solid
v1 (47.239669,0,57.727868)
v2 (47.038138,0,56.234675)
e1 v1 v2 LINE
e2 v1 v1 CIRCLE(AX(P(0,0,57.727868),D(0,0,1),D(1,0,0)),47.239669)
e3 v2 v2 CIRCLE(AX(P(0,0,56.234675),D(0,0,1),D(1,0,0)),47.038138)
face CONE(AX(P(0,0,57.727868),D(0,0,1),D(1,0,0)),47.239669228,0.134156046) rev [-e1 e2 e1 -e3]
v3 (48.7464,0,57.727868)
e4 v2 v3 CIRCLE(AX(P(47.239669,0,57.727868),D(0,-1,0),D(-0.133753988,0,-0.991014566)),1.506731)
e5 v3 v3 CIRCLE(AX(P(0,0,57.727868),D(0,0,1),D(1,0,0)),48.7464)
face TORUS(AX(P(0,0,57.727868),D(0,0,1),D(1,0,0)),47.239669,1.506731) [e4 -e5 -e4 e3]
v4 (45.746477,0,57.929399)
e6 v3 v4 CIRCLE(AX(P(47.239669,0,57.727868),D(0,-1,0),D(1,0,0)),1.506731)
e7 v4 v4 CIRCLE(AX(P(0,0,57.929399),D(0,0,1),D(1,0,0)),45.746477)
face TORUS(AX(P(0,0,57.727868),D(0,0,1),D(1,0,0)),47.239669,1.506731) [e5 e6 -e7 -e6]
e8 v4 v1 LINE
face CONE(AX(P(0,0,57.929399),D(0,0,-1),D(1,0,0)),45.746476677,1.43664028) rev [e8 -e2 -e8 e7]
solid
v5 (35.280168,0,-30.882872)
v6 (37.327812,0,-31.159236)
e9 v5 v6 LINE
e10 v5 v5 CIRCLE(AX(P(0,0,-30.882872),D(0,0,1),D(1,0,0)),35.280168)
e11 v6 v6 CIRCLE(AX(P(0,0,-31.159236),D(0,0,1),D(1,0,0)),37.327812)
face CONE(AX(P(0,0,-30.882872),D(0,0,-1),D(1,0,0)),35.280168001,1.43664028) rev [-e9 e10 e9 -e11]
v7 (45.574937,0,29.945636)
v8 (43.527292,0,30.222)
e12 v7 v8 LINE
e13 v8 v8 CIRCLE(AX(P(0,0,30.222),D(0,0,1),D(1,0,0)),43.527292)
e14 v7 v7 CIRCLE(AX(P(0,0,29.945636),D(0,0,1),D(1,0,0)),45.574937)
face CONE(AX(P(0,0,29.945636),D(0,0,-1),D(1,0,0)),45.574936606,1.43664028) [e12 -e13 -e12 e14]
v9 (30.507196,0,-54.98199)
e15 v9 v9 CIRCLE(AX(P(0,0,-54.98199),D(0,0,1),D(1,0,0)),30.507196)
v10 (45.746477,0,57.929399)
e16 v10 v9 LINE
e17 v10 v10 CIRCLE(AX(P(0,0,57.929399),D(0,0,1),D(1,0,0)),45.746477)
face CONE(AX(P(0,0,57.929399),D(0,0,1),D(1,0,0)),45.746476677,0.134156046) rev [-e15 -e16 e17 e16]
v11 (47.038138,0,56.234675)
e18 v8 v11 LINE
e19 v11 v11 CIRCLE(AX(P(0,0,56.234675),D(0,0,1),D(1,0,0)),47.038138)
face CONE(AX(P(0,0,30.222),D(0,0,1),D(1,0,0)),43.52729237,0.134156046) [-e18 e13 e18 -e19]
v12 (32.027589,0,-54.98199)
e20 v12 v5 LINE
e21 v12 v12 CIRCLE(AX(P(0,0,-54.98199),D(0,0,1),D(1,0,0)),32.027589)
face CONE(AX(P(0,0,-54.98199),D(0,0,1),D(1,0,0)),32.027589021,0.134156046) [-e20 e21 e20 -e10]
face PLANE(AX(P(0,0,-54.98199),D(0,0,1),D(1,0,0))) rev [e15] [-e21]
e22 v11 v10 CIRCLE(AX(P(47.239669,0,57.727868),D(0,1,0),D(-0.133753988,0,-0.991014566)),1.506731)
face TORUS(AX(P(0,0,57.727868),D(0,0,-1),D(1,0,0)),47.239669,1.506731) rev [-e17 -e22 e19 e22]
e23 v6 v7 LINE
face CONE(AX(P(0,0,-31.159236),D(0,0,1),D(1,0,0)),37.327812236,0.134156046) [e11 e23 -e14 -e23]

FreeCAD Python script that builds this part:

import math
import FreeCAD as App
import Part
import Sketcher

doc = App.newDocument("Part")
params = doc.addObject("Spreadsheet::Sheet", "Params")
for row, (alias, value) in enumerate([
    ("revolution_angle", "360 deg"),
    ("revolution2_angle", "360 deg"),
], start=1):
    params.set(f"A{row}", alias)
    params.set(f"B{row}", "=" + value)
    params.setAlias(f"B{row}", alias)

body = doc.addObject("PartDesign::Body", "Body")

# Sketch on XZ plane
sketch1 = body.newObject("Sketcher::SketchObject", "Sketch")
sketch1.AttachmentSupport = (doc.getObject("XZ_Plane"), [""])
sketch1.MapMode = "FlatFace"
sketch1.addGeometry(Part.LineSegment(App.Vector(47.2, 57.7, 0), App.Vector(47, 56.2, 0)), False)
sketch1.addGeometry(Part.ArcOfCircle(Part.Circle(App.Vector(47.2, 57.7, 0), App.Vector(0, 0, 1), 1.5), math.radians(-98), math.radians(0)), False)
sketch1.addGeometry(Part.ArcOfCircle(Part.Circle(App.Vector(47.2, 57.7, 0), App.Vector(0, 0, 1), 1.5), math.radians(0), math.radians(172)), False)
sketch1.addGeometry(Part.LineSegment(App.Vector(45.7, 57.9, 0), App.Vector(47.2, 57.7, 0)), False)
sketch1.addConstraint(Sketcher.Constraint("Coincident", 0, 2, 1, 1))
sketch1.addConstraint(Sketcher.Constraint("Tangent", 1, 2, 2, 1))
sketch1.addConstraint(Sketcher.Constraint("Coincident", 2, 2, 3, 1))
sketch1.addConstraint(Sketcher.Constraint("Coincident", 3, 2, 0, 1))
sketch1.addConstraint(Sketcher.Constraint("Coincident", 3, 2, 1, 3))
sketch1.addConstraint(Sketcher.Constraint("Equal", 1, 2))
sketch1.addConstraint(Sketcher.Constraint("Perpendicular", 0, 3))
sketch1.addConstraint(Sketcher.Constraint("Horizontal", 2, 3, 1, 2))
sketch1.addConstraint(Sketcher.Constraint("Radius", 1, 1.506731))
sketch1.addConstraint(Sketcher.Constraint("DistanceX", -1, 1, 1, 2, 48.7464))
sketch1.addConstraint(Sketcher.Constraint("DistanceY", -1, 1, 2, 2, 57.929399))
sketch1.addConstraint(Sketcher.Constraint("DistanceX", 0, 2, 1, 3, 0.201531))
revolution = body.newObject("PartDesign::Revolution", "Revolution")
revolution.Profile = sketch1
revolution.ReferenceAxis = (sketch1, ["V_Axis"])
revolution.setExpression("Angle", "Params.revolution_angle")
body2 = doc.addObject("PartDesign::Body", "Body001")

# Sketch on XZ plane
sketch2 = body2.newObject("Sketcher::SketchObject", "Sketch001")
sketch2.AttachmentSupport = (doc.getObject("XZ_Plane001"), [""])
sketch2.MapMode = "FlatFace"
sketch2.addGeometry(Part.LineSegment(App.Vector(37.3, -31.2, 0), App.Vector(45.6, 29.9, 0)), False)
sketch2.addGeometry(Part.LineSegment(App.Vector(45.6, 29.9, 0), App.Vector(43.5, 30.2, 0)), False)
sketch2.addGeometry(Part.LineSegment(App.Vector(43.5, 30.2, 0), App.Vector(47, 56.2, 0)), False)
sketch2.addGeometry(Part.ArcOfCircle(Part.Circle(App.Vector(47.2, 57.7, 0), App.Vector(0, 0, 1), 1.5), math.radians(172), math.radians(262)), False)
sketch2.addGeometry(Part.LineSegment(App.Vector(45.7, 57.9, 0), App.Vector(30.5, -55, 0)), False)
sketch2.addGeometry(Part.LineSegment(App.Vector(30.5, -55, 0), App.Vector(32, -55, 0)), False)
sketch2.addGeometry(Part.LineSegment(App.Vector(32, -55, 0), App.Vector(35.3, -30.9, 0)), False)
sketch2.addGeometry(Part.LineSegment(App.Vector(35.3, -30.9, 0), App.Vector(37.3, -31.2, 0)), False)
sketch2.addConstraint(Sketcher.Constraint("Coincident", 0, 2, 1, 1))
sketch2.addConstraint(Sketcher.Constraint("Coincident", 1, 2, 2, 1))
sketch2.addConstraint(Sketcher.Constraint("Coincident", 2, 2, 3, 2))
sketch2.addConstraint(Sketcher.Constraint("Tangent", 3, 1, 4, 1))
sketch2.addConstraint(Sketcher.Constraint("Coincident", 4, 2, 5, 1))
sketch2.addConstraint(Sketcher.Constraint("Coincident", 5, 2, 6, 1))
sketch2.addConstraint(Sketcher.Constraint("Coincident", 6, 2, 7, 1))
sketch2.addConstraint(Sketcher.Constraint("Coincident", 7, 2, 0, 1))
sketch2.addConstraint(Sketcher.Constraint("Horizontal", 5))
sketch2.addConstraint(Sketcher.Constraint("Perpendicular", 0, 1))
sketch2.addConstraint(Sketcher.Constraint("Perpendicular", 1, 2))
sketch2.addConstraint(Sketcher.Constraint("Parallel", 2, 4))
sketch2.addConstraint(Sketcher.Constraint("Parallel", 4, 6))
sketch2.addConstraint(Sketcher.Constraint("Perpendicular", 6, 7))
sketch2.addConstraint(Sketcher.Constraint("Equal", 1, 7))
sketch2.addConstraint(Sketcher.Constraint("Radius", 3, 1.506731))
sketch2.addConstraint(Sketcher.Constraint("DistanceY", -1, 1, 1, 2, 30.222))
sketch2.addConstraint(Sketcher.Constraint("DistanceY", -1, 1, 3, 1, 57.929399))
sketch2.addConstraint(Sketcher.Constraint("DistanceX", 0, 2, 2, 2, 1.463201))
sketch2.addConstraint(Sketcher.Constraint("Distance", 1, 2.06621))
sketch2.addConstraint(Sketcher.Constraint("Distance", 2, 26.24853))
sketch2.addConstraint(Sketcher.Constraint("DistanceX", -1, 1, 3, 3, 47.239669))
sketch2.addConstraint(Sketcher.Constraint("DistanceY", 4, 2, -1, 1, 54.98199))
sketch2.addConstraint(Sketcher.Constraint("DistanceX", -1, 1, 6, 2, 35.280168))
revolution2 = body2.newObject("PartDesign::Revolution", "Revolution001")
revolution2.Profile = sketch2
revolution2.ReferenceAxis = (sketch2, ["V_Axis"])
revolution2.setExpression("Angle", "Params.revolution2_angle")

doc.recompute()
